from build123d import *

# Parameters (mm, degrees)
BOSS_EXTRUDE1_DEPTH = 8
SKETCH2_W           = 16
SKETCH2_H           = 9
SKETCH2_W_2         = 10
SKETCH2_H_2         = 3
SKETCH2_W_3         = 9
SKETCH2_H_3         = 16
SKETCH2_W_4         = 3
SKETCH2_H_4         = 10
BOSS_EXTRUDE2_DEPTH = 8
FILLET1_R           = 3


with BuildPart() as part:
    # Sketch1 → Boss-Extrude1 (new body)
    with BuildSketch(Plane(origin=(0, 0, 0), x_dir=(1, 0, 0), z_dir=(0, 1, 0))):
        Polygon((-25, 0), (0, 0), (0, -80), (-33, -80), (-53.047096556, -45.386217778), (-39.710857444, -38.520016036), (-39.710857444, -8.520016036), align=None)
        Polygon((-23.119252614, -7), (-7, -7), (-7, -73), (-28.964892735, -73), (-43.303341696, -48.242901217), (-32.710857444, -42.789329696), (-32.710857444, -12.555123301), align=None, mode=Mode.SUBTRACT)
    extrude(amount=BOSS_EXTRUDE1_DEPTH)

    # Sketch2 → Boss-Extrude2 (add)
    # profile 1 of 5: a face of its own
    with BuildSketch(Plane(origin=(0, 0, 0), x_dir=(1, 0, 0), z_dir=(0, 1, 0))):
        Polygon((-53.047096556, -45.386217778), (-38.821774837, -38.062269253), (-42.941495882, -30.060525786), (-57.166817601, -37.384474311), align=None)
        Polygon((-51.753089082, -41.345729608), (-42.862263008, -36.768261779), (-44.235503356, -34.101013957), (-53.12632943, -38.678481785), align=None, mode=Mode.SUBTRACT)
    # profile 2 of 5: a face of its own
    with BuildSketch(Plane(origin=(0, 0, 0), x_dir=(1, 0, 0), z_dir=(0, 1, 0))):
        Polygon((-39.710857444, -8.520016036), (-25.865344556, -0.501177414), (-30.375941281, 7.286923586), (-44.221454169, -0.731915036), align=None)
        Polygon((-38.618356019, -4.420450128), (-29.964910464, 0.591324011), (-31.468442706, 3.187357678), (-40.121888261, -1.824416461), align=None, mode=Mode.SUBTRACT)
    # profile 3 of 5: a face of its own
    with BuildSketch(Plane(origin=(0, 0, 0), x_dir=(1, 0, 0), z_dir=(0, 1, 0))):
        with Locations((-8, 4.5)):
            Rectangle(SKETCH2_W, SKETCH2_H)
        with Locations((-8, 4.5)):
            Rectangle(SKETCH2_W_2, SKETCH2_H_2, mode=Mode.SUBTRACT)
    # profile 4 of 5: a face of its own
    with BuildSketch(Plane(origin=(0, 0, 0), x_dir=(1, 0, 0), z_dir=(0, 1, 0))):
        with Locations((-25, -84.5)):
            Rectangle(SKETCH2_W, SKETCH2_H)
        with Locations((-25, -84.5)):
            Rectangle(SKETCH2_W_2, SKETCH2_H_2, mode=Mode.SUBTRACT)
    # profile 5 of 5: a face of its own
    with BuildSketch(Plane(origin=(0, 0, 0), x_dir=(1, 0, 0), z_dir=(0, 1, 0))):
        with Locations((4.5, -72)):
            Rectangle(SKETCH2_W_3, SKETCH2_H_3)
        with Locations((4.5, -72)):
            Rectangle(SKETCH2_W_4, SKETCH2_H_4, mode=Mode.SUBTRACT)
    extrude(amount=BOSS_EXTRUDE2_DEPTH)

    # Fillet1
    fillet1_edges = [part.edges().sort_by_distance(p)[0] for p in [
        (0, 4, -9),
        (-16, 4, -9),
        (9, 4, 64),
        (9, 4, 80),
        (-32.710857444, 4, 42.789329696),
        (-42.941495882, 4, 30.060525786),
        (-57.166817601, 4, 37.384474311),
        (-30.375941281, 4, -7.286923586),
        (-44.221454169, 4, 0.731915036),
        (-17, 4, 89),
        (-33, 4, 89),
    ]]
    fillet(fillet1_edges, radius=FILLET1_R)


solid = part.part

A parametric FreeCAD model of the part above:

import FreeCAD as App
import Part
import Sketcher

V = App.Vector
Q = App.Units.Quantity


def edges_at(feature, points):
    """Names of the edges that pass closest to the given points."""
    edges = feature.Shape.Edges
    near = lambda p: min(range(len(edges)), key=lambda i: edges[i].distToShape(Part.Vertex(*p))[0])
    return sorted({f"Edge{near(p) + 1}" for p in points})

doc = App.newDocument("Part")
params = doc.addObject("Spreadsheet::Sheet", "Params")
for row, (alias, value) in enumerate([
    ("sketch1_width", "25 mm"),
    ("sketch1_width2", "33 mm"),
    ("sketch1_height", "30 mm"),
    ("sketch1_height2", "80 mm"),
    ("sketch1_height3", "66 mm"),
    ("pad1_length", "8 mm"),
    ("sketch2_width", "16 mm"),
    ("sketch2_width2", "10 mm"),
    ("sketch2_width3", "9 mm"),
    ("sketch2_width4", "3 mm"),
    ("sketch2_length", "16 mm"),
    ("pad2_length", "8 mm"),
    ("fillet_radius", "3 mm"),
], start=1):
    params.set(f"A{row}", alias)
    params.set(f"B{row}", "=" + value)
    params.setAlias(f"B{row}", alias)

body = doc.addObject("PartDesign::Body", "Body")

# Sketch on XZ plane
sketch1 = doc.addObject("Sketcher::SketchObject", "Sketch")
body.addObject(sketch1)
sketch1.AttachmentSupport = (doc.XZ_Plane, [""])
sketch1.MapMode = "FlatFace"
sketch1.addGeometry(Part.LineSegment(V(0, 0, 0), V(-25, 0, 0)), False)
sketch1.addGeometry(Part.LineSegment(V(-25, 0, 0), V(-40, 9, 0)), False)
sketch1.addGeometry(Part.LineSegment(V(-40, 9, 0), V(-40, 39, 0)), False)
sketch1.addGeometry(Part.LineSegment(V(-40, 39, 0), V(-53, 45, 0)), False)
sketch1.addGeometry(Part.LineSegment(V(-53, 45, 0), V(-33, 80, 0)), False)
sketch1.addGeometry(Part.LineSegment(V(-33, 80, 0), V(0, 80, 0)), False)
sketch1.addGeometry(Part.LineSegment(V(0, 80, 0), V(0, 0, 0)), False)
sketch1.addGeometry(Part.LineSegment(V(-23, 7, 0), V(-7, 7, 0)), False)
sketch1.addGeometry(Part.LineSegment(V(-7, 7, 0), V(-7, 73, 0)), False)
sketch1.addGeometry(Part.LineSegment(V(-7, 73, 0), V(-29, 73, 0)), False)
sketch1.addGeometry(Part.LineSegment(V(-29, 73, 0), V(-43, 48, 0)), False)
sketch1.addGeometry(Part.LineSegment(V(-43, 48, 0), V(-33, 43, 0)), False)
sketch1.addGeometry(Part.LineSegment(V(-33, 43, 0), V(-33, 13, 0)), False)
sketch1.addGeometry(Part.LineSegment(V(-33, 13, 0), V(-23, 7, 0)), False)
sketch1.addConstraint(Sketcher.Constraint("Coincident", 0, 2, 1, 1))
sketch1.addConstraint(Sketcher.Constraint("Coincident", 1, 2, 2, 1))
sketch1.addConstraint(Sketcher.Constraint("Coincident", 2, 2, 3, 1))
sketch1.addConstraint(Sketcher.Constraint("Coincident", 3, 2, 4, 1))
sketch1.addConstraint(Sketcher.Constraint("Coincident", 4, 2, 5, 1))
sketch1.addConstraint(Sketcher.Constraint("Coincident", 5, 2, 6, 1))
sketch1.addConstraint(Sketcher.Constraint("Coincident", 6, 2, 0, 1))
sketch1.addConstraint(Sketcher.Constraint("Coincident", 7, 2, 8, 1))
sketch1.addConstraint(Sketcher.Constraint("Coincident", 8, 2, 9, 1))
sketch1.addConstraint(Sketcher.Constraint("Coincident", 9, 2, 10, 1))
sketch1.addConstraint(Sketcher.Constraint("Coincident", 10, 2, 11, 1))
sketch1.addConstraint(Sketcher.Constraint("Coincident", 11, 2, 12, 1))
sketch1.addConstraint(Sketcher.Constraint("Coincident", 12, 2, 13, 1))
sketch1.addConstraint(Sketcher.Constraint("Coincident", 13, 2, 7, 1))
sketch1.addConstraint(Sketcher.Constraint("Horizontal", 0))
sketch1.addConstraint(Sketcher.Constraint("Vertical", 2))
sketch1.addConstraint(Sketcher.Constraint("Horizontal", 5))
sketch1.addConstraint(Sketcher.Constraint("Vertical", 6))
sketch1.addConstraint(Sketcher.Constraint("Horizontal", 7))
sketch1.addConstraint(Sketcher.Constraint("Vertical", 8))
sketch1.addConstraint(Sketcher.Constraint("Horizontal", 9))
sketch1.addConstraint(Sketcher.Constraint("Vertical", 12))
sketch1.addConstraint(Sketcher.Constraint("Coincident", 6, 2, -1, 1))
sketch1.addConstraint(Sketcher.Constraint("Perpendicular", 1, 4))
sketch1.addConstraint(Sketcher.Constraint("Parallel", 4, 10))
sketch1.addConstraint(Sketcher.Constraint("Parallel", 3, 11))
sketch1.addConstraint(Sketcher.Constraint("Perpendicular", 10, 13))
sketch1.addConstraint(Sketcher.Constraint("DistanceX", 0, 2, 0, 1, Q("25 mm")))
sketch1.addConstraint(Sketcher.Constraint("DistanceX", 5, 1, 5, 2, Q("33 mm")))
sketch1.addConstraint(Sketcher.Constraint("DistanceY", 2, 1, 2, 2, Q("30 mm")))
sketch1.addConstraint(Sketcher.Constraint("DistanceY", 6, 2, 6, 1, Q("80 mm")))
sketch1.addConstraint(Sketcher.Constraint("DistanceY", 8, 1, 8, 2, Q("66 mm")))
sketch1.addConstraint(Sketcher.Constraint("Distance", 1, Q("17 mm")))
sketch1.addConstraint(Sketcher.Constraint("Distance", 3, Q("15 mm")))
sketch1.addConstraint(Sketcher.Constraint("Distance", 4, Q("40 mm")))
sketch1.addConstraint(Sketcher.Constraint("DistanceX", 7, 2, -1, 1, Q("7 mm")))
sketch1.addConstraint(Sketcher.Constraint("DistanceY", -1, 1, 7, 2, Q("7 mm")))
sketch1.addConstraint(Sketcher.Constraint("DistanceX", 2, 2, 11, 2, Q("7 mm")))
sketch1.addConstraint(Sketcher.Constraint("DistanceY", -1, 1, 10, 2, Q("48.242901 mm")))
sketch1.addConstraint(Sketcher.Constraint("Distance", 11, Q("11.913948 mm")))
sketch1.addConstraint(Sketcher.Constraint("DistanceX", 7, 1, 7, 2, Q("16.119253 mm")))
sketch1.setExpression("Constraints[27]", "Params.sketch1_width")
sketch1.setExpression("Constraints[28]", "Params.sketch1_width2")
sketch1.setExpression("Constraints[29]", "Params.sketch1_height")
sketch1.setExpression("Constraints[30]", "Params.sketch1_height2")
sketch1.setExpression("Constraints[31]", "Params.sketch1_height3")
pad1 = doc.addObject("PartDesign::Pad", "Pad")
body.addObject(pad1)
pad1.Profile = sketch1
pad1.setExpression("Length", "Params.pad1_length")
pad1.Reversed = True

# Sketch on XZ plane
sketch2 = doc.addObject("Sketcher::SketchObject", "Sketch001")
body.addObject(sketch2)
sketch2.AttachmentSupport = (doc.XZ_Plane, [""])
sketch2.MapMode = "FlatFace"
sketch2.addGeometry(Part.LineSegment(V(-53, 45.4, 0), V(-38.8, 38.1, 0)), False)
sketch2.addGeometry(Part.LineSegment(V(-38.8, 38.1, 0), V(-42.9, 30.1, 0)), False)
sketch2.addGeometry(Part.LineSegment(V(-42.9, 30.1, 0), V(-57.2, 37.4, 0)), False)
sketch2.addGeometry(Part.LineSegment(V(-57.2, 37.4, 0), V(-53, 45.4, 0)), False)
sketch2.addGeometry(Part.LineSegment(V(-42.9, 36.8, 0), V(-51.8, 41.3, 0)), False)
sketch2.addGeometry(Part.LineSegment(V(-51.8, 41.3, 0), V(-53.1, 38.7, 0)), False)
sketch2.addGeometry(Part.LineSegment(V(-53.1, 38.7, 0), V(-44.2, 34.1, 0)), False)
sketch2.addGeometry(Part.LineSegment(V(-44.2, 34.1, 0), V(-42.9, 36.8, 0)), False)
sketch2.addGeometry(Part.LineSegment(V(-39.7, 8.5, 0), V(-25.9, 0.5, 0)), False)
sketch2.addGeometry(Part.LineSegment(V(-25.9, 0.5, 0), V(-30.4, -7.3, 0)), False)
sketch2.addGeometry(Part.LineSegment(V(-30.4, -7.3, 0), V(-44.2, 0.7, 0)), False)
sketch2.addGeometry(Part.LineSegment(V(-44.2, 0.7, 0), V(-39.7, 8.5, 0)), False)
sketch2.addGeometry(Part.LineSegment(V(-30, -0.6, 0), V(-38.6, 4.4, 0)), False)
sketch2.addGeometry(Part.LineSegment(V(-38.6, 4.4, 0), V(-40.1, 1.8, 0)), False)
sketch2.addGeometry(Part.LineSegment(V(-40.1, 1.8, 0), V(-31.5, -3.2, 0)), False)
sketch2.addGeometry(Part.LineSegment(V(-31.5, -3.2, 0), V(-30, -0.6, 0)), False)
sketch2.addGeometry(Part.LineSegment(V(-16, -9, 0), V(-16, 0, 0)), False)
sketch2.addGeometry(Part.LineSegment(V(-16, 0, 0), V(0, 0, 0)), False)
sketch2.addGeometry(Part.LineSegment(V(0, 0, 0), V(0, -9, 0)), False)
sketch2.addGeometry(Part.LineSegment(V(0, -9, 0), V(-16, -9, 0)), False)
sketch2.addGeometry(Part.LineSegment(V(-3, -3, 0), V(-13, -3, 0)), False)
sketch2.addGeometry(Part.LineSegment(V(-13, -3, 0), V(-13, -6, 0)), False)
sketch2.addGeometry(Part.LineSegment(V(-13, -6, 0), V(-3, -6, 0)), False)
sketch2.addGeometry(Part.LineSegment(V(-3, -6, 0), V(-3, -3, 0)), False)
sketch2.addGeometry(Part.LineSegment(V(-33, 80, 0), V(-33, 89, 0)), False)
sketch2.addGeometry(Part.LineSegment(V(-33, 89, 0), V(-17, 89, 0)), False)
sketch2.addGeometry(Part.LineSegment(V(-17, 89, 0), V(-17, 80, 0)), False)
sketch2.addGeometry(Part.LineSegment(V(-17, 80, 0), V(-33, 80, 0)), False)
sketch2.addGeometry(Part.LineSegment(V(-20, 86, 0), V(-30, 86, 0)), False)
sketch2.addGeometry(Part.LineSegment(V(-30, 86, 0), V(-30, 83, 0)), False)
sketch2.addGeometry(Part.LineSegment(V(-30, 83, 0), V(-20, 83, 0)), False)
sketch2.addGeometry(Part.LineSegment(V(-20, 83, 0), V(-20, 86, 0)), False)
sketch2.addGeometry(Part.LineSegment(V(0, 64, 0), V(0, 80, 0)), False)
sketch2.addGeometry(Part.LineSegment(V(0, 80, 0), V(9, 80, 0)), False)
sketch2.addGeometry(Part.LineSegment(V(9, 80, 0), V(9, 64, 0)), False)
sketch2.addGeometry(Part.LineSegment(V(9, 64, 0), V(0, 64, 0)), False)
sketch2.addGeometry(Part.LineSegment(V(6, 77, 0), V(3, 77, 0)), False)
sketch2.addGeometry(Part.LineSegment(V(3, 77, 0), V(3, 67, 0)), False)
sketch2.addGeometry(Part.LineSegment(V(3, 67, 0), V(6, 67, 0)), False)
sketch2.addGeometry(Part.LineSegment(V(6, 67, 0), V(6, 77, 0)), False)
sketch2.addConstraint(Sketcher.Constraint("Coincident", 0, 2, 1, 1))
sketch2.addConstraint(Sketcher.Constraint("Coincident", 1, 2, 2, 1))
sketch2.addConstraint(Sketcher.Constraint("Coincident", 2, 2, 3, 1))
sketch2.addConstraint(Sketcher.Constraint("Coincident", 3, 2, 0, 1))
sketch2.addConstraint(Sketcher.Constraint("Coincident", 4, 2, 5, 1))
sketch2.addConstraint(Sketcher.Constraint("Coincident", 5, 2, 6, 1))
sketch2.addConstraint(Sketcher.Constraint("Coincident", 6, 2, 7, 1))
sketch2.addConstraint(Sketcher.Constraint("Coincident", 7, 2, 4, 1))
sketch2.addConstraint(Sketcher.Constraint("Coincident", 8, 2, 9, 1))
sketch2.addConstraint(Sketcher.Constraint("Coincident", 9, 2, 10, 1))
sketch2.addConstraint(Sketcher.Constraint("Coincident", 10, 2, 11, 1))
sketch2.addConstraint(Sketcher.Constraint("Coincident", 11, 2, 8, 1))
sketch2.addConstraint(Sketcher.Constraint("Coincident", 12, 2, 13, 1))
sketch2.addConstraint(Sketcher.Constraint("Coincident", 13, 2, 14, 1))
sketch2.addConstraint(Sketcher.Constraint("Coincident", 14, 2, 15, 1))
sketch2.addConstraint(Sketcher.Constraint("Coincident", 15, 2, 12, 1))
sketch2.addConstraint(Sketcher.Constraint("Coincident", 16, 2, 17, 1))
sketch2.addConstraint(Sketcher.Constraint("Coincident", 17, 2, 18, 1))
sketch2.addConstraint(Sketcher.Constraint("Coincident", 18, 2, 19, 1))
sketch2.addConstraint(Sketcher.Constraint("Coincident", 19, 2, 16, 1))
sketch2.addConstraint(Sketcher.Constraint("Coincident", 20, 2, 21, 1))
sketch2.addConstraint(Sketcher.Constraint("Coincident", 21, 2, 22, 1))
sketch2.addConstraint(Sketcher.Constraint("Coincident", 22, 2, 23, 1))
sketch2.addConstraint(Sketcher.Constraint("Coincident", 23, 2, 20, 1))
sketch2.addConstraint(Sketcher.Constraint("Coincident", 24, 2, 25, 1))
sketch2.addConstraint(Sketcher.Constraint("Coincident", 25, 2, 26, 1))
sketch2.addConstraint(Sketcher.Constraint("Coincident", 26, 2, 27, 1))
sketch2.addConstraint(Sketcher.Constraint("Coincident", 27, 2, 24, 1))
sketch2.addConstraint(Sketcher.Constraint("Coincident", 28, 2, 29, 1))
sketch2.addConstraint(Sketcher.Constraint("Coincident", 29, 2, 30, 1))
sketch2.addConstraint(Sketcher.Constraint("Coincident", 30, 2, 31, 1))
sketch2.addConstraint(Sketcher.Constraint("Coincident", 31, 2, 28, 1))
sketch2.addConstraint(Sketcher.Constraint("Coincident", 32, 2, 33, 1))
sketch2.addConstraint(Sketcher.Constraint("Coincident", 33, 2, 34, 1))
sketch2.addConstraint(Sketcher.Constraint("Coincident", 34, 2, 35, 1))
sketch2.addConstraint(Sketcher.Constraint("Coincident", 35, 2, 32, 1))
sketch2.addConstraint(Sketcher.Constraint("Coincident", 36, 2, 37, 1))
sketch2.addConstraint(Sketcher.Constraint("Coincident", 37, 2, 38, 1))
sketch2.addConstraint(Sketcher.Constraint("Coincident", 38, 2, 39, 1))
sketch2.addConstraint(Sketcher.Constraint("Coincident", 39, 2, 36, 1))
sketch2.addConstraint(Sketcher.Constraint("Vertical", 16))
sketch2.addConstraint(Sketcher.Constraint("Horizontal", 17))
sketch2.addConstraint(Sketcher.Constraint("Vertical", 18))
sketch2.addConstraint(Sketcher.Constraint("Horizontal", 19))
sketch2.addConstraint(Sketcher.Constraint("Horizontal", 20))
sketch2.addConstraint(Sketcher.Constraint("Vertical", 21))
sketch2.addConstraint(Sketcher.Constraint("Horizontal", 22))
sketch2.addConstraint(Sketcher.Constraint("Vertical", 23))
sketch2.addConstraint(Sketcher.Constraint("Vertical", 24))
sketch2.addConstraint(Sketcher.Constraint("Horizontal", 25))
sketch2.addConstraint(Sketcher.Constraint("Vertical", 26))
sketch2.addConstraint(Sketcher.Constraint("Horizontal", 27))
sketch2.addConstraint(Sketcher.Constraint("Horizontal", 28))
sketch2.addConstraint(Sketcher.Constraint("Vertical", 29))
sketch2.addConstraint(Sketcher.Constraint("Horizontal", 30))
sketch2.addConstraint(Sketcher.Constraint("Vertical", 31))
sketch2.addConstraint(Sketcher.Constraint("Vertical", 32))
sketch2.addConstraint(Sketcher.Constraint("Horizontal", 33))
sketch2.addConstraint(Sketcher.Constraint("Vertical", 34))
sketch2.addConstraint(Sketcher.Constraint("Horizontal", 35))
sketch2.addConstraint(Sketcher.Constraint("Horizontal", 36))
sketch2.addConstraint(Sketcher.Constraint("Vertical", 37))
sketch2.addConstraint(Sketcher.Constraint("Horizontal", 38))
sketch2.addConstraint(Sketcher.Constraint("Vertical", 39))
sketch2.addConstraint(Sketcher.Constraint("Coincident", 17, 2, -1, 1))
sketch2.addConstraint(Sketcher.Constraint("PointOnObject", 32, 2, -2))
sketch2.addConstraint(Sketcher.Constraint("Perpendicular", 0, 1))
sketch2.addConstraint(Sketcher.Constraint("Perpendicular", 1, 2))
sketch2.addConstraint(Sketcher.Constraint("Perpendicular", 2, 3))
sketch2.addConstraint(Sketcher.Constraint("Perpendicular", 3, 4))
sketch2.addConstraint(Sketcher.Constraint("Perpendicular", 4, 5))
sketch2.addConstraint(Sketcher.Constraint("Perpendicular", 5, 6))
sketch2.addConstraint(Sketcher.Constraint("Perpendicular", 6, 7))
sketch2.addConstraint(Sketcher.Constraint("Perpendicular", 8, 9))
sketch2.addConstraint(Sketcher.Constraint("Perpendicular", 9, 10))
sketch2.addConstraint(Sketcher.Constraint("Perpendicular", 10, 11))
sketch2.addConstraint(Sketcher.Constraint("Perpendicular", 11, 12))
sketch2.addConstraint(Sketcher.Constraint("Perpendicular", 12, 13))
sketch2.addConstraint(Sketcher.Constraint("Perpendicular", 13, 14))
sketch2.addConstraint(Sketcher.Constraint("Perpendicular", 14, 15))
sketch2.addConstraint(Sketcher.Constraint("Horizontal", 27, 2, 32, 2))
sketch2.addConstraint(Sketcher.Constraint("Equal", 19, 25))
sketch2.addConstraint(Sketcher.Constraint("Equal", 22, 28))
sketch2.addConstraint(Sketcher.Constraint("Equal", 35, 16))
sketch2.addConstraint(Sketcher.Constraint("Equal", 38, 21))
sketch2.addConstraint(Sketcher.Constraint("Equal", 18, 24))
sketch2.addConstraint(Sketcher.Constraint("Equal", 23, 29))
sketch2.addConstraint(Sketcher.Constraint("Equal", 27, 32))
sketch2.addConstraint(Sketcher.Constraint("Equal", 30, 37))
sketch2.addConstraint(Sketcher.Constraint("Equal", 2, 8))
sketch2.addConstraint(Sketcher.Constraint("Equal", 3, 9))
sketch2.addConstraint(Sketcher.Constraint("Equal", 6, 12))
sketch2.addConstraint(Sketcher.Constraint("Equal", 7, 13))
sketch2.addConstraint(Sketcher.Constraint("DistanceX", 17, 1, 17, 2, Q("16 mm")))
sketch2.addConstraint(Sketcher.Constraint("DistanceX", 20, 2, 20, 1, Q("10 mm")))
sketch2.addConstraint(Sketcher.Constraint("DistanceX", 33, 1, 33, 2, Q("9 mm")))
sketch2.addConstraint(Sketcher.Constraint("DistanceX", 36, 2, 36, 1, Q("3 mm")))
sketch2.addConstraint(Sketcher.Constraint("Distance", 0, Q("16 mm")))
sketch2.addConstraint(Sketcher.Constraint("Distance", 1, Q("9 mm")))
sketch2.addConstraint(Sketcher.Constraint("Distance", 4, Q("10 mm")))
sketch2.addConstraint(Sketcher.Constraint("Distance", 5, Q("3 mm")))
sketch2.addConstraint(Sketcher.Constraint("DistanceX", 20, 2, -1, 1, Q("13 mm")))
sketch2.addConstraint(Sketcher.Constraint("DistanceY", 20, 2, -1, 1, Q("3 mm")))
sketch2.addConstraint(Sketcher.Constraint("DistanceX", 24, 2, -1, 1, Q("33 mm")))
sketch2.addConstraint(Sketcher.Constraint("DistanceY", -1, 1, 24, 2, Q("89 mm")))
sketch2.addConstraint(Sketcher.Constraint("DistanceX", 28, 2, -1, 1, Q("30 mm")))
sketch2.addConstraint(Sketcher.Constraint("DistanceY", -1, 1, 28, 2, Q("86 mm")))
sketch2.addConstraint(Sketcher.Constraint("DistanceX", -1, 1, 36, 2, Q("3 mm")))
sketch2.addConstraint(Sketcher.Constraint("DistanceY", -1, 1, 36, 2, Q("77 mm")))
sketch2.addConstraint(Sketcher.Constraint("DistanceX", 3, 2, 1, 2, Q("10.105601 mm")))
sketch2.addConstraint(Sketcher.Constraint("DistanceY", 9, 2, 8, 2, Q("7.788101 mm")))
sketch2.addConstraint(Sketcher.Constraint("DistanceY", 10, 2, 6, 2, Q("33.369099 mm")))
sketch2.addConstraint(Sketcher.Constraint("DistanceX", 11, 2, 12, 2, Q("1.092501 mm")))
sketch2.addConstraint(Sketcher.Constraint("DistanceY", 10, 2, 13, 2, Q("1.092501 mm")))
sketch2.addConstraint(Sketcher.Constraint("DistanceY", -1, 1, 0, 2, Q("38.062269 mm")))
sketch2.addConstraint(Sketcher.Constraint("DistanceX", 4, 2, -1, 1, Q("51.753089 mm")))
sketch2.addConstraint(Sketcher.Constraint("DistanceY", -1, 1, 4, 2, Q("41.34573 mm")))
sketch2.addConstraint(Sketcher.Constraint("DistanceX", 9, 2, -1, 1, Q("30.375941 mm")))
sketch2.addConstraint(Sketcher.Constraint("DistanceX", 2, 2, 4, 2, Q("5.413729 mm")))
sketch2.setExpression("Constraints[93]", "Params.sketch2_width")
sketch2.setExpression("Constraints[94]", "Params.sketch2_width2")
sketch2.setExpression("Constraints[95]", "Params.sketch2_width3")
sketch2.setExpression("Constraints[96]", "Params.sketch2_width4")
sketch2.setExpression("Constraints[97]", "Params.sketch2_length")
pad2 = doc.addObject("PartDesign::Pad", "Pad001")
body.addObject(pad2)
pad2.Profile = sketch2
pad2.setExpression("Length", "Params.pad2_length")
pad2.Reversed = True
doc.recompute()

fillet = doc.addObject("PartDesign::Fillet", "Fillet")
body.addObject(fillet)
fillet.Base = (pad2, edges_at(pad2, [
    (0, 4, -9),
    (-16, 4, -9),
    (9, 4, 64),
    (9, 4, 80),
    (-32.711, 4, 42.789),
    (-42.941, 4, 30.061),
    (-57.167, 4, 37.384),
    (-30.376, 4, -7.287),
    (-44.221, 4, 0.732),
    (-17, 4, 89),
    (-33, 4, 89),
]))
fillet.setExpression("Radius", "Params.fillet_radius")

doc.recompute()
